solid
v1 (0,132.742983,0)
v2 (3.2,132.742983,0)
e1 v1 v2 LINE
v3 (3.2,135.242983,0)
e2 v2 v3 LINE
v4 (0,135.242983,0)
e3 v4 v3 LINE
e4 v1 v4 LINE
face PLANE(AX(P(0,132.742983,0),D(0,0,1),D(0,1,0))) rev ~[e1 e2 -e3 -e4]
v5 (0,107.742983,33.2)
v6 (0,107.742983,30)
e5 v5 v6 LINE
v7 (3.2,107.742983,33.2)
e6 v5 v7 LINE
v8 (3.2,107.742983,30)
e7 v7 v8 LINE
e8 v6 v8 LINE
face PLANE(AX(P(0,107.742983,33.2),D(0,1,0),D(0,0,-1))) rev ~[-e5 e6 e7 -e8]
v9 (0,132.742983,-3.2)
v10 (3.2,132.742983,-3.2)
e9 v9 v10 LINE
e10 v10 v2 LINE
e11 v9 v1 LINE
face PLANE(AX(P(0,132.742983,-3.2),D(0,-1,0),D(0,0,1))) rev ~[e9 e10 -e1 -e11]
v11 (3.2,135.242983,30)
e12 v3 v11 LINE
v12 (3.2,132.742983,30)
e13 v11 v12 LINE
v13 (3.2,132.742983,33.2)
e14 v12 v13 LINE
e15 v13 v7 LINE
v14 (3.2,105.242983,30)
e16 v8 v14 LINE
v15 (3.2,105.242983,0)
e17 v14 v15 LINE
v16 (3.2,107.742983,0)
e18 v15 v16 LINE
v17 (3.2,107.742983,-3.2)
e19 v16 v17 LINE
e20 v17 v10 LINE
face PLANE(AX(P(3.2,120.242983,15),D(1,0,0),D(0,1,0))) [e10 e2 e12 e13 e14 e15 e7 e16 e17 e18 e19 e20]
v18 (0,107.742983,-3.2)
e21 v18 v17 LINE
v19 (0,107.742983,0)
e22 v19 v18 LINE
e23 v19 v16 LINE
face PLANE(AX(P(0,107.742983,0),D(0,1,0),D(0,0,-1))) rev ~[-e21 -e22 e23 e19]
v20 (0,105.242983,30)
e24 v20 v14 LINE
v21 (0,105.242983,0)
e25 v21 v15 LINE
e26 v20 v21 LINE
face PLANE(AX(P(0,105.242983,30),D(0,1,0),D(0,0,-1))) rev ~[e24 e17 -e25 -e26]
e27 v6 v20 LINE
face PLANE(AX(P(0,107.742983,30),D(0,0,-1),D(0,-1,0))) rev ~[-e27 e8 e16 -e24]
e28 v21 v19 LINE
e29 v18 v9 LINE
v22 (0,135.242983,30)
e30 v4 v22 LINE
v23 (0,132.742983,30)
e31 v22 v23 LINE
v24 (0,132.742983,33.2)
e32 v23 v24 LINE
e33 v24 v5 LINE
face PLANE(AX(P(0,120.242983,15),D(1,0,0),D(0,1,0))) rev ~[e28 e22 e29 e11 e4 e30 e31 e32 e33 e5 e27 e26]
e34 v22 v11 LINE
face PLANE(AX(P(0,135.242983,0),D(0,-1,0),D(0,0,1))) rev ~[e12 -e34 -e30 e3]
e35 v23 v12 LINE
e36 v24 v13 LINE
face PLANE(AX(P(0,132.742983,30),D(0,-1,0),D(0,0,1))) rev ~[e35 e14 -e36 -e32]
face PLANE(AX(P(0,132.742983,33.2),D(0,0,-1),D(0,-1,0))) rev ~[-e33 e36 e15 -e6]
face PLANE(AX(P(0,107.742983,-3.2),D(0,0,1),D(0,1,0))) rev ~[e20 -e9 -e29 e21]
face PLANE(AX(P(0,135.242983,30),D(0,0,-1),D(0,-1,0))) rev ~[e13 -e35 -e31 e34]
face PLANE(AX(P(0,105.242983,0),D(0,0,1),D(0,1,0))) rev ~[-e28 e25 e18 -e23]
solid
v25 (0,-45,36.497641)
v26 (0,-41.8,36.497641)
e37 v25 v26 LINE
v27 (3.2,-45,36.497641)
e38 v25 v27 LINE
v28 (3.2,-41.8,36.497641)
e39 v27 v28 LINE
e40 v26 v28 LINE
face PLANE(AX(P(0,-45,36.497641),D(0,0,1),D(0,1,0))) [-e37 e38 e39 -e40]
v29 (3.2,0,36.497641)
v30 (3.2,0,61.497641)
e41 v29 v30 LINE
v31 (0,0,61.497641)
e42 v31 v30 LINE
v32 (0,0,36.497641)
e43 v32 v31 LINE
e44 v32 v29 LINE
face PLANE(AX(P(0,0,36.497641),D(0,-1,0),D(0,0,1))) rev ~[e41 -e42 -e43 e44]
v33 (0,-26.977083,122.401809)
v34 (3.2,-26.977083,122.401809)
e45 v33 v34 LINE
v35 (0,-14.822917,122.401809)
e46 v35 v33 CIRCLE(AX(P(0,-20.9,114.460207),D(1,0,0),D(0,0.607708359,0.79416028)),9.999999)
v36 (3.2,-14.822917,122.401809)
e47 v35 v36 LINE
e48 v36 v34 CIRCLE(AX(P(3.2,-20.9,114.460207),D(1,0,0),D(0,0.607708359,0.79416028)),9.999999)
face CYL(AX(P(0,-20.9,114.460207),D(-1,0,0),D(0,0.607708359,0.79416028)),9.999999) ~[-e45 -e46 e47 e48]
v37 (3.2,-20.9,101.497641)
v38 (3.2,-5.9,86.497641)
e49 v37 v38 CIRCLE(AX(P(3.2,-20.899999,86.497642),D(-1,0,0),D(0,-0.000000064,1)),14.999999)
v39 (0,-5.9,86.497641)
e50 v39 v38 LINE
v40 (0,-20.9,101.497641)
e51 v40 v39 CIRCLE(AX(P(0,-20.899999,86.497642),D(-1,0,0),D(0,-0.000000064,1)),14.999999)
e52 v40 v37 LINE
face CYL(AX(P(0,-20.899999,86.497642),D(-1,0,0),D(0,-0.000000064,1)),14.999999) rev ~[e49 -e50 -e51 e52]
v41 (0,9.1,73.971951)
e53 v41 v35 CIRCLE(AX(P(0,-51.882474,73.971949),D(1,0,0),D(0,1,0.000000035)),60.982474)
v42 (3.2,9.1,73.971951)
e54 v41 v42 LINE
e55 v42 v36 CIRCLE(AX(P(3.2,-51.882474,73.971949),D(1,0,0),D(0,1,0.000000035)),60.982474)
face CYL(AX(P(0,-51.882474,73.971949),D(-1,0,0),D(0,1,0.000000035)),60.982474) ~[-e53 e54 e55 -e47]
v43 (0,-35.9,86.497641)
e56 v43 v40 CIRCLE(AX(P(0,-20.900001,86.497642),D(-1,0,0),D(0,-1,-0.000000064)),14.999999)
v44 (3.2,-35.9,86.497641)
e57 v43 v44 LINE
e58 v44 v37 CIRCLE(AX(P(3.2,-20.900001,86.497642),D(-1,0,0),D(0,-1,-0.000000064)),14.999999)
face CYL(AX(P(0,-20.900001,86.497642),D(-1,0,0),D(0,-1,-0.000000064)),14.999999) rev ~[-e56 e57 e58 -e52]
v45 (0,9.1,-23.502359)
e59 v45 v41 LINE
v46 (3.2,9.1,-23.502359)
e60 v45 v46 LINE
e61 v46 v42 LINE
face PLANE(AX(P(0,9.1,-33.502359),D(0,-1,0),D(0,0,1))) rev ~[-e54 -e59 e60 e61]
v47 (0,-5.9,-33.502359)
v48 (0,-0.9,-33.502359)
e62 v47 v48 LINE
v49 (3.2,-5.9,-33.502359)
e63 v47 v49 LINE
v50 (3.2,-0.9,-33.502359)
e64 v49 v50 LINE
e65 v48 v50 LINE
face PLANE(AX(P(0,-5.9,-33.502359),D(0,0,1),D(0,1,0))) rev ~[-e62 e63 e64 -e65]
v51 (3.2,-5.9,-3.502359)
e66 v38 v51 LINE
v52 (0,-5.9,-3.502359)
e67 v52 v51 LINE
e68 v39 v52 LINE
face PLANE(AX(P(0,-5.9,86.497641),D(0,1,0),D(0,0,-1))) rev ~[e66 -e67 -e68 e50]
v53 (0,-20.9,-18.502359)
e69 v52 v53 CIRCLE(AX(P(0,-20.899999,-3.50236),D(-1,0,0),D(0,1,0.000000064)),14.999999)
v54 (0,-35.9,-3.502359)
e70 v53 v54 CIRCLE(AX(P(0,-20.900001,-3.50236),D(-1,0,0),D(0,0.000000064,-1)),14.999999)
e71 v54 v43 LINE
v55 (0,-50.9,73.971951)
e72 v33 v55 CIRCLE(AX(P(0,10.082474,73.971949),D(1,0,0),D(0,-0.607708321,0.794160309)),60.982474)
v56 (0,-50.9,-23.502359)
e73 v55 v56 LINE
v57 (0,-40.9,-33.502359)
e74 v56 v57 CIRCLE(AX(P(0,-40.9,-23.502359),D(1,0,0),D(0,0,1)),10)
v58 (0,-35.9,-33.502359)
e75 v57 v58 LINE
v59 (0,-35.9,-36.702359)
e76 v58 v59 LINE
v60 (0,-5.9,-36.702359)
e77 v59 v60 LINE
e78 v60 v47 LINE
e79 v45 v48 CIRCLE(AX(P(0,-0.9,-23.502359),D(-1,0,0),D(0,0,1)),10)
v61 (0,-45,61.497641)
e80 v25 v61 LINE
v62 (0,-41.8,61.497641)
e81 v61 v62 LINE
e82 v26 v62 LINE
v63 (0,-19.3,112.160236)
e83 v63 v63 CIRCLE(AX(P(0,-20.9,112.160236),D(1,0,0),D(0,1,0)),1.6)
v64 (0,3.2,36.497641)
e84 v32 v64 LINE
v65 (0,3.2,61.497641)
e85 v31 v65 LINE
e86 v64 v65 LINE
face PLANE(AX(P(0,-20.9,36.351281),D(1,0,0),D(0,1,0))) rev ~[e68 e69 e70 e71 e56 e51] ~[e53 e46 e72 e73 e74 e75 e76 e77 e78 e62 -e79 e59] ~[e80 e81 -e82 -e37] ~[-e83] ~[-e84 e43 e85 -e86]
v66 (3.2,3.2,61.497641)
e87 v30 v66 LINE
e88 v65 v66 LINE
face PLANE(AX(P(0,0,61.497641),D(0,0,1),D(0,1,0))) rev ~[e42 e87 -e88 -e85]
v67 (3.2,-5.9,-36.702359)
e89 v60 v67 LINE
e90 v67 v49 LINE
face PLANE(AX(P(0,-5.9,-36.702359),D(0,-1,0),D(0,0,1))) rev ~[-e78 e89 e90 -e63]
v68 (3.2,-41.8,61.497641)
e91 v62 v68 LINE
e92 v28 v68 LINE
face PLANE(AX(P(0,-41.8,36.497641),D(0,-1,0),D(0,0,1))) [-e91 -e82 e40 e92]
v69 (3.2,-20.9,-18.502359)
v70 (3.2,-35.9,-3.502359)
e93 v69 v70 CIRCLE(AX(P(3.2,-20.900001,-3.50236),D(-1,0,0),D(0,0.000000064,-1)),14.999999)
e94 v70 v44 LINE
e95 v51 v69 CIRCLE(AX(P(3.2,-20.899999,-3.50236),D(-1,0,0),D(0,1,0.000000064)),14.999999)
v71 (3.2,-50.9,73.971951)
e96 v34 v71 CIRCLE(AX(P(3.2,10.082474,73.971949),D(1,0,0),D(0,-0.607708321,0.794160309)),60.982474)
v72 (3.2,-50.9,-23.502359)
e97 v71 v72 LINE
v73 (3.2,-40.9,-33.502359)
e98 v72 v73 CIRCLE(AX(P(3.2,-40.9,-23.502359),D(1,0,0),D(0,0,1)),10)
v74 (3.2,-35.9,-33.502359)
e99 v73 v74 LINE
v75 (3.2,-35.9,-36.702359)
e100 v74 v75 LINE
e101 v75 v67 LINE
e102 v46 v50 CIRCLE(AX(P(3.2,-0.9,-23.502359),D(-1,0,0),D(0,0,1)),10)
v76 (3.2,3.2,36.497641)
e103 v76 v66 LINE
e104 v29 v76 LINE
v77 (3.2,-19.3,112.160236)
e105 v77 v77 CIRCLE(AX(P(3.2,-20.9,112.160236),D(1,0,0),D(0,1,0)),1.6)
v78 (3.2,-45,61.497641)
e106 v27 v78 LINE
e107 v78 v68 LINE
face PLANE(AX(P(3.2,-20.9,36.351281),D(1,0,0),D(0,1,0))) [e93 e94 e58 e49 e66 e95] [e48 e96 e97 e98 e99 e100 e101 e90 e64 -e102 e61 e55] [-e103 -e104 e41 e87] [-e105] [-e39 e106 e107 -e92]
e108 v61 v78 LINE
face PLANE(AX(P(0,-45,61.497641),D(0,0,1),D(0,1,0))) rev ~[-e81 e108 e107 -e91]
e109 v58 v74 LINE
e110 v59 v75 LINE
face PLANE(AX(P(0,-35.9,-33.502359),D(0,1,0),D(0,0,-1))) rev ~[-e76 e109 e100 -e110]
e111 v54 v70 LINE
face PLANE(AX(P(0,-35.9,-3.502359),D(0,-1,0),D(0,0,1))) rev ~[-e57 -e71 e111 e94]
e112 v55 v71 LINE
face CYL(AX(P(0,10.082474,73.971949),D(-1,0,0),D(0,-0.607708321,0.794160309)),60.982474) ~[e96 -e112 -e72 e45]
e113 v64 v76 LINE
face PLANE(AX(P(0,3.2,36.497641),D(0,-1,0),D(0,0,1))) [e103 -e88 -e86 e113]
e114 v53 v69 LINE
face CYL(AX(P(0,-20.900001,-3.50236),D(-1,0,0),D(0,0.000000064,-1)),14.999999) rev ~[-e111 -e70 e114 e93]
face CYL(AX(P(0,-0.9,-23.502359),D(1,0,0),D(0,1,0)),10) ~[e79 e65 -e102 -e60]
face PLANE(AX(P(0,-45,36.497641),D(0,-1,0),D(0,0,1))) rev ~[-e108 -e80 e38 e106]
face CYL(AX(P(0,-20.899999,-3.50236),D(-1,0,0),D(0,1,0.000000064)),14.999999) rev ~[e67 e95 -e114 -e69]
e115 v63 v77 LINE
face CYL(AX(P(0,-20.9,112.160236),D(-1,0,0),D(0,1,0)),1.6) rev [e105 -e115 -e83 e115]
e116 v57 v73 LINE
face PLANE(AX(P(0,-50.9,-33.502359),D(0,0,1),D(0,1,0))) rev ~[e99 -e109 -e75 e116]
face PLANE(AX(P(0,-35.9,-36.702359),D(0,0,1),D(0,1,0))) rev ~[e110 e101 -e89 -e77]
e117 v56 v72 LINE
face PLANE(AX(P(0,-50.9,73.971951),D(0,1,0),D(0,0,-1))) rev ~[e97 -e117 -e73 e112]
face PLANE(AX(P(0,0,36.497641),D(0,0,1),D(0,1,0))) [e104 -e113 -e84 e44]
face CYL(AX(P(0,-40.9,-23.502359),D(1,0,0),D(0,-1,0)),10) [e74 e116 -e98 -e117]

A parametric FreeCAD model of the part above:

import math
import FreeCAD as App
import Part
import Sketcher

V = App.Vector


def edges_at(feature, points):
    """Names of the edges that pass closest to the given points."""
    edges = feature.Shape.Edges
    near = lambda p: min(range(len(edges)), key=lambda i: edges[i].distToShape(Part.Vertex(*p))[0])
    return sorted({f"Edge{near(p) + 1}" for p in points})

doc = App.newDocument("Part")
body = doc.addObject("PartDesign::Body", "Body")
body.AllowCompound = True

# Sketch on YZ plane
sketch1 = doc.addObject("Sketcher::SketchObject", "Sketch")
body.addObject(sketch1)
sketch1.AttachmentSupport = (doc.YZ_Plane, [""])
sketch1.MapMode = "FlatFace"
sketch1.addGeometry([
    Part.LineSegment(V(-50.9, 74, 0), V(-50.9, -33.5, 0)),  # 0
    Part.LineSegment(V(-50.9, -33.5, 0), V(-35.9, -33.5, 0)),  # 1
    Part.LineSegment(V(-35.9, -33.5, 0), V(-35.9, -36.7, 0)),  # 2
    Part.LineSegment(V(-35.9, -36.7, 0), V(-5.9, -36.7, 0)),  # 3
    Part.LineSegment(V(-5.9, -36.7, 0), V(-5.9, -33.5, 0)),  # 4
    Part.LineSegment(V(-5.9, -33.5, 0), V(9.1, -33.5, 0)),  # 5
    Part.LineSegment(V(9.1, -33.5, 0), V(9.1, 74, 0)),  # 6
    Part.ArcOfCircle(Part.Circle(V(-51.9, 74, 0), V(0, 0, 1), 61), math.radians(0), math.radians(53)),  # 7
    Part.ArcOfCircle(Part.Circle(V(-20.9, 114.5, 0), V(0, 0, 1), 10), math.radians(53), math.radians(127)),  # 8
    Part.ArcOfCircle(Part.Circle(V(10.1, 74, 0), V(0, 0, 1), 61), math.radians(127), math.radians(180)),  # 9
    Part.ArcOfCircle(Part.Circle(V(-20.9, -3.5, 0), V(0, 0, 1), 15), math.radians(180), math.radians(270)),  # 10
    Part.LineSegment(V(-35.9, -3.5, 0), V(-35.9, 86.5, 0)),  # 11
    Part.ArcOfCircle(Part.Circle(V(-20.9, 86.5, 0), V(0, 0, 1), 15), math.radians(90), math.radians(180)),  # 12
    Part.ArcOfCircle(Part.Circle(V(-20.9, 86.5, 0), V(0, 0, 1), 15), math.radians(0), math.radians(90)),  # 13
    Part.LineSegment(V(-5.9, 86.5, 0), V(-5.9, -3.5, 0)),  # 14
    Part.ArcOfCircle(Part.Circle(V(-20.9, -3.5, 0), V(0, 0, 1), 15), math.radians(-90), math.radians(0)),  # 15
    Part.LineSegment(V(-41.8, 36.5, 0), V(-45, 36.5, 0)),  # 16
    Part.LineSegment(V(-45, 36.5, 0), V(-45, 61.5, 0)),  # 17
    Part.LineSegment(V(-45, 61.5, 0), V(-41.8, 61.5, 0)),  # 18
    Part.LineSegment(V(-41.8, 61.5, 0), V(-41.8, 36.5, 0)),  # 19
    Part.LineSegment(V(3.2, 36.5, 0), V(0, 36.5, 0)),  # 20
    Part.LineSegment(V(0, 36.5, 0), V(0, 61.5, 0)),  # 21
    Part.LineSegment(V(0, 61.5, 0), V(3.2, 61.5, 0)),  # 22
    Part.LineSegment(V(3.2, 61.5, 0), V(3.2, 36.5, 0)),  # 23
    Part.Circle(V(-20.9, 112.2, 0), V(0, 0, 1), 1.6),  # 24
    Part.LineSegment(V(107.7, 30, 0), V(105.2, 30, 0)),  # 25
    Part.LineSegment(V(105.2, 30, 0), V(105.2, 0, 0)),  # 26
    Part.LineSegment(V(105.2, 0, 0), V(107.7, 0, 0)),  # 27
    Part.LineSegment(V(107.7, 0, 0), V(107.7, -3.2, 0)),  # 28
    Part.LineSegment(V(107.7, -3.2, 0), V(132.7, -3.2, 0)),  # 29
    Part.LineSegment(V(132.7, -3.2, 0), V(132.7, 0, 0)),  # 30
    Part.LineSegment(V(132.7, 0, 0), V(135.2, 0, 0)),  # 31
    Part.LineSegment(V(135.2, 0, 0), V(135.2, 30, 0)),  # 32
    Part.LineSegment(V(135.2, 30, 0), V(132.7, 30, 0)),  # 33
    Part.LineSegment(V(132.7, 30, 0), V(132.7, 33.2, 0)),  # 34
    Part.LineSegment(V(132.7, 33.2, 0), V(107.7, 33.2, 0)),  # 35
    Part.LineSegment(V(107.7, 33.2, 0), V(107.7, 30, 0)),  # 36
], False)
sketch1.addConstraint([
    Sketcher.Constraint("Coincident", 0, 2, 1, 1),
    Sketcher.Constraint("Coincident", 1, 2, 2, 1),
    Sketcher.Constraint("Coincident", 2, 2, 3, 1),
    Sketcher.Constraint("Coincident", 3, 2, 4, 1),
    Sketcher.Constraint("Coincident", 4, 2, 5, 1),
    Sketcher.Constraint("Coincident", 5, 2, 6, 1),
    Sketcher.Constraint("Tangent", 6, 2, 7, 1),
    Sketcher.Constraint("Tangent", 7, 2, 8, 1),
    Sketcher.Constraint("Tangent", 8, 2, 9, 1),
    Sketcher.Constraint("Tangent", 9, 2, 0, 1),
    Sketcher.Constraint("Tangent", 10, 1, 11, 1),
    Sketcher.Constraint("Tangent", 11, 2, 12, 2),
    Sketcher.Constraint("Tangent", 12, 1, 13, 2),
    Sketcher.Constraint("Tangent", 13, 1, 14, 1),
    Sketcher.Constraint("Tangent", 14, 2, 15, 2),
    Sketcher.Constraint("Tangent", 15, 1, 10, 2),
    Sketcher.Constraint("Coincident", 16, 2, 17, 1),
    Sketcher.Constraint("Coincident", 17, 2, 18, 1),
    Sketcher.Constraint("Coincident", 18, 2, 19, 1),
    Sketcher.Constraint("Coincident", 19, 2, 16, 1),
    Sketcher.Constraint("Coincident", 20, 2, 21, 1),
    Sketcher.Constraint("Coincident", 21, 2, 22, 1),
    Sketcher.Constraint("Coincident", 22, 2, 23, 1),
    Sketcher.Constraint("Coincident", 23, 2, 20, 1),
    Sketcher.Constraint("Coincident", 25, 2, 26, 1),
    Sketcher.Constraint("Coincident", 26, 2, 27, 1),
    Sketcher.Constraint("Coincident", 27, 2, 28, 1),
    Sketcher.Constraint("Coincident", 28, 2, 29, 1),
    Sketcher.Constraint("Coincident", 29, 2, 30, 1),
    Sketcher.Constraint("Coincident", 30, 2, 31, 1),
    Sketcher.Constraint("Coincident", 31, 2, 32, 1),
    Sketcher.Constraint("Coincident", 32, 2, 33, 1),
    Sketcher.Constraint("Coincident", 33, 2, 34, 1),
    Sketcher.Constraint("Coincident", 34, 2, 35, 1),
    Sketcher.Constraint("Coincident", 35, 2, 36, 1),
    Sketcher.Constraint("Coincident", 36, 2, 25, 1),
    Sketcher.Constraint("Vertical", 0),
    Sketcher.Constraint("Horizontal", 1),
    Sketcher.Constraint("Vertical", 2),
    Sketcher.Constraint("Horizontal", 3),
    Sketcher.Constraint("Vertical", 4),
    Sketcher.Constraint("Horizontal", 5),
    Sketcher.Constraint("Vertical", 6),
    Sketcher.Constraint("Vertical", 11),
    Sketcher.Constraint("Vertical", 14),
    Sketcher.Constraint("Horizontal", 16),
    Sketcher.Constraint("Vertical", 17),
    Sketcher.Constraint("Horizontal", 18),
    Sketcher.Constraint("Vertical", 19),
    Sketcher.Constraint("Horizontal", 20),
    Sketcher.Constraint("Vertical", 21),
    Sketcher.Constraint("Horizontal", 22),
    Sketcher.Constraint("Vertical", 23),
    Sketcher.Constraint("Horizontal", 25),
    Sketcher.Constraint("Vertical", 26),
    Sketcher.Constraint("Horizontal", 27),
    Sketcher.Constraint("Vertical", 28),
    Sketcher.Constraint("Horizontal", 29),
    Sketcher.Constraint("Vertical", 30),
    Sketcher.Constraint("Horizontal", 31),
    Sketcher.Constraint("Vertical", 32),
    Sketcher.Constraint("Horizontal", 33),
    Sketcher.Constraint("Vertical", 34),
    Sketcher.Constraint("Horizontal", 35),
    Sketcher.Constraint("Vertical", 36),
    Sketcher.Constraint("Equal", 7, 9),
    Sketcher.Constraint("Equal", 10, 12),
    Sketcher.Constraint("Equal", 12, 13),
    Sketcher.Constraint("PointOnObject", 20, 2, -2),
    Sketcher.Constraint("PointOnObject", 26, 2, -1),
    Sketcher.Constraint("PointOnObject", 30, 2, -1),
    Sketcher.Constraint("Horizontal", 7, 3, 9, 3),
    Sketcher.Constraint("Horizontal", 1, 2, 4, 2),
    Sketcher.Constraint("Horizontal", 19, 2, 20, 2),
    Sketcher.Constraint("Horizontal", 18, 2, 21, 2),
    Sketcher.Constraint("Horizontal", 25, 2, 32, 2),
    Sketcher.Constraint("Vertical", 8, 3, 10, 3),
    Sketcher.Constraint("Vertical", 15, 3, 24, 3),
    Sketcher.Constraint("Vertical", 2, 2, 10, 1),
    Sketcher.Constraint("Vertical", 24, 3, 12, 1),
    Sketcher.Constraint("Vertical", 4, 2, 13, 1),
    Sketcher.Constraint("Vertical", 12, 1, 15, 1),
    Sketcher.Constraint("Vertical", 30, 2, 33, 2),
    Sketcher.Constraint("Vertical", 28, 2, 35, 2),
    Sketcher.Constraint("Equal", 18, 20),
    Sketcher.Constraint("Equal", 27, 31),
    Sketcher.Constraint("Equal", 22, 2),
    Sketcher.Constraint("Equal", 35, 17),
    Sketcher.Constraint("Equal", 3, 26),
    Sketcher.Constraint("Equal", 4, 28),
    Sketcher.Constraint("Equal", 30, 34),
    Sketcher.Constraint("Radius", 8, 9.999999),
    Sketcher.Constraint("Radius", 10, 14.999999),
    Sketcher.Constraint("Diameter", 24, 3.2),
    Sketcher.Constraint("DistanceX", 1, 1, 1, 2, 15.0),
    Sketcher.Constraint("DistanceX", 29, 1, 29, 2, 25.0),
    Sketcher.Constraint("DistanceY", 11, 1, 11, 2, 90.0),
    Sketcher.Constraint("DistanceX", 16, 2, 16, 1, 3.2),
    Sketcher.Constraint("DistanceX", 25, 2, 25, 1, 2.5),
    Sketcher.Constraint("DistanceX", 16, 2, -1, 1, 45.0),
    Sketcher.Constraint("DistanceY", 0, 2, 10, 3, 29.999999),
    Sketcher.Constraint("DistanceY", 10, 1, 16, 2, 40.0),
    Sketcher.Constraint("DistanceX", 8, 3, -1, 1, 20.9),
    Sketcher.Constraint("Radius", 7, 60.982474),
    Sketcher.Constraint("DistanceY", 0, 2, 0, 1, 107.47431),
    Sketcher.Constraint("DistanceY", -1, 1, 7, 3, 73.971949),
    Sketcher.Constraint("DistanceY", 24, 3, 8, 3, 2.299971),
    Sketcher.Constraint("DistanceX", 9, 3, 25, 2, 95.160509),
])
pad1 = doc.addObject("PartDesign::Pad", "Pad")
body.addObject(pad1)
pad1.Profile = sketch1
pad1.Length = 3.2
doc.recompute()

fillet = doc.addObject("PartDesign::Fillet", "Fillet")
body.addObject(fillet)
fillet.Base = (pad1, edges_at(pad1, [(1.6, -50.9, -33.502), (1.6, 9.1, -33.502)]))
fillet.Radius = 10

doc.recompute()
